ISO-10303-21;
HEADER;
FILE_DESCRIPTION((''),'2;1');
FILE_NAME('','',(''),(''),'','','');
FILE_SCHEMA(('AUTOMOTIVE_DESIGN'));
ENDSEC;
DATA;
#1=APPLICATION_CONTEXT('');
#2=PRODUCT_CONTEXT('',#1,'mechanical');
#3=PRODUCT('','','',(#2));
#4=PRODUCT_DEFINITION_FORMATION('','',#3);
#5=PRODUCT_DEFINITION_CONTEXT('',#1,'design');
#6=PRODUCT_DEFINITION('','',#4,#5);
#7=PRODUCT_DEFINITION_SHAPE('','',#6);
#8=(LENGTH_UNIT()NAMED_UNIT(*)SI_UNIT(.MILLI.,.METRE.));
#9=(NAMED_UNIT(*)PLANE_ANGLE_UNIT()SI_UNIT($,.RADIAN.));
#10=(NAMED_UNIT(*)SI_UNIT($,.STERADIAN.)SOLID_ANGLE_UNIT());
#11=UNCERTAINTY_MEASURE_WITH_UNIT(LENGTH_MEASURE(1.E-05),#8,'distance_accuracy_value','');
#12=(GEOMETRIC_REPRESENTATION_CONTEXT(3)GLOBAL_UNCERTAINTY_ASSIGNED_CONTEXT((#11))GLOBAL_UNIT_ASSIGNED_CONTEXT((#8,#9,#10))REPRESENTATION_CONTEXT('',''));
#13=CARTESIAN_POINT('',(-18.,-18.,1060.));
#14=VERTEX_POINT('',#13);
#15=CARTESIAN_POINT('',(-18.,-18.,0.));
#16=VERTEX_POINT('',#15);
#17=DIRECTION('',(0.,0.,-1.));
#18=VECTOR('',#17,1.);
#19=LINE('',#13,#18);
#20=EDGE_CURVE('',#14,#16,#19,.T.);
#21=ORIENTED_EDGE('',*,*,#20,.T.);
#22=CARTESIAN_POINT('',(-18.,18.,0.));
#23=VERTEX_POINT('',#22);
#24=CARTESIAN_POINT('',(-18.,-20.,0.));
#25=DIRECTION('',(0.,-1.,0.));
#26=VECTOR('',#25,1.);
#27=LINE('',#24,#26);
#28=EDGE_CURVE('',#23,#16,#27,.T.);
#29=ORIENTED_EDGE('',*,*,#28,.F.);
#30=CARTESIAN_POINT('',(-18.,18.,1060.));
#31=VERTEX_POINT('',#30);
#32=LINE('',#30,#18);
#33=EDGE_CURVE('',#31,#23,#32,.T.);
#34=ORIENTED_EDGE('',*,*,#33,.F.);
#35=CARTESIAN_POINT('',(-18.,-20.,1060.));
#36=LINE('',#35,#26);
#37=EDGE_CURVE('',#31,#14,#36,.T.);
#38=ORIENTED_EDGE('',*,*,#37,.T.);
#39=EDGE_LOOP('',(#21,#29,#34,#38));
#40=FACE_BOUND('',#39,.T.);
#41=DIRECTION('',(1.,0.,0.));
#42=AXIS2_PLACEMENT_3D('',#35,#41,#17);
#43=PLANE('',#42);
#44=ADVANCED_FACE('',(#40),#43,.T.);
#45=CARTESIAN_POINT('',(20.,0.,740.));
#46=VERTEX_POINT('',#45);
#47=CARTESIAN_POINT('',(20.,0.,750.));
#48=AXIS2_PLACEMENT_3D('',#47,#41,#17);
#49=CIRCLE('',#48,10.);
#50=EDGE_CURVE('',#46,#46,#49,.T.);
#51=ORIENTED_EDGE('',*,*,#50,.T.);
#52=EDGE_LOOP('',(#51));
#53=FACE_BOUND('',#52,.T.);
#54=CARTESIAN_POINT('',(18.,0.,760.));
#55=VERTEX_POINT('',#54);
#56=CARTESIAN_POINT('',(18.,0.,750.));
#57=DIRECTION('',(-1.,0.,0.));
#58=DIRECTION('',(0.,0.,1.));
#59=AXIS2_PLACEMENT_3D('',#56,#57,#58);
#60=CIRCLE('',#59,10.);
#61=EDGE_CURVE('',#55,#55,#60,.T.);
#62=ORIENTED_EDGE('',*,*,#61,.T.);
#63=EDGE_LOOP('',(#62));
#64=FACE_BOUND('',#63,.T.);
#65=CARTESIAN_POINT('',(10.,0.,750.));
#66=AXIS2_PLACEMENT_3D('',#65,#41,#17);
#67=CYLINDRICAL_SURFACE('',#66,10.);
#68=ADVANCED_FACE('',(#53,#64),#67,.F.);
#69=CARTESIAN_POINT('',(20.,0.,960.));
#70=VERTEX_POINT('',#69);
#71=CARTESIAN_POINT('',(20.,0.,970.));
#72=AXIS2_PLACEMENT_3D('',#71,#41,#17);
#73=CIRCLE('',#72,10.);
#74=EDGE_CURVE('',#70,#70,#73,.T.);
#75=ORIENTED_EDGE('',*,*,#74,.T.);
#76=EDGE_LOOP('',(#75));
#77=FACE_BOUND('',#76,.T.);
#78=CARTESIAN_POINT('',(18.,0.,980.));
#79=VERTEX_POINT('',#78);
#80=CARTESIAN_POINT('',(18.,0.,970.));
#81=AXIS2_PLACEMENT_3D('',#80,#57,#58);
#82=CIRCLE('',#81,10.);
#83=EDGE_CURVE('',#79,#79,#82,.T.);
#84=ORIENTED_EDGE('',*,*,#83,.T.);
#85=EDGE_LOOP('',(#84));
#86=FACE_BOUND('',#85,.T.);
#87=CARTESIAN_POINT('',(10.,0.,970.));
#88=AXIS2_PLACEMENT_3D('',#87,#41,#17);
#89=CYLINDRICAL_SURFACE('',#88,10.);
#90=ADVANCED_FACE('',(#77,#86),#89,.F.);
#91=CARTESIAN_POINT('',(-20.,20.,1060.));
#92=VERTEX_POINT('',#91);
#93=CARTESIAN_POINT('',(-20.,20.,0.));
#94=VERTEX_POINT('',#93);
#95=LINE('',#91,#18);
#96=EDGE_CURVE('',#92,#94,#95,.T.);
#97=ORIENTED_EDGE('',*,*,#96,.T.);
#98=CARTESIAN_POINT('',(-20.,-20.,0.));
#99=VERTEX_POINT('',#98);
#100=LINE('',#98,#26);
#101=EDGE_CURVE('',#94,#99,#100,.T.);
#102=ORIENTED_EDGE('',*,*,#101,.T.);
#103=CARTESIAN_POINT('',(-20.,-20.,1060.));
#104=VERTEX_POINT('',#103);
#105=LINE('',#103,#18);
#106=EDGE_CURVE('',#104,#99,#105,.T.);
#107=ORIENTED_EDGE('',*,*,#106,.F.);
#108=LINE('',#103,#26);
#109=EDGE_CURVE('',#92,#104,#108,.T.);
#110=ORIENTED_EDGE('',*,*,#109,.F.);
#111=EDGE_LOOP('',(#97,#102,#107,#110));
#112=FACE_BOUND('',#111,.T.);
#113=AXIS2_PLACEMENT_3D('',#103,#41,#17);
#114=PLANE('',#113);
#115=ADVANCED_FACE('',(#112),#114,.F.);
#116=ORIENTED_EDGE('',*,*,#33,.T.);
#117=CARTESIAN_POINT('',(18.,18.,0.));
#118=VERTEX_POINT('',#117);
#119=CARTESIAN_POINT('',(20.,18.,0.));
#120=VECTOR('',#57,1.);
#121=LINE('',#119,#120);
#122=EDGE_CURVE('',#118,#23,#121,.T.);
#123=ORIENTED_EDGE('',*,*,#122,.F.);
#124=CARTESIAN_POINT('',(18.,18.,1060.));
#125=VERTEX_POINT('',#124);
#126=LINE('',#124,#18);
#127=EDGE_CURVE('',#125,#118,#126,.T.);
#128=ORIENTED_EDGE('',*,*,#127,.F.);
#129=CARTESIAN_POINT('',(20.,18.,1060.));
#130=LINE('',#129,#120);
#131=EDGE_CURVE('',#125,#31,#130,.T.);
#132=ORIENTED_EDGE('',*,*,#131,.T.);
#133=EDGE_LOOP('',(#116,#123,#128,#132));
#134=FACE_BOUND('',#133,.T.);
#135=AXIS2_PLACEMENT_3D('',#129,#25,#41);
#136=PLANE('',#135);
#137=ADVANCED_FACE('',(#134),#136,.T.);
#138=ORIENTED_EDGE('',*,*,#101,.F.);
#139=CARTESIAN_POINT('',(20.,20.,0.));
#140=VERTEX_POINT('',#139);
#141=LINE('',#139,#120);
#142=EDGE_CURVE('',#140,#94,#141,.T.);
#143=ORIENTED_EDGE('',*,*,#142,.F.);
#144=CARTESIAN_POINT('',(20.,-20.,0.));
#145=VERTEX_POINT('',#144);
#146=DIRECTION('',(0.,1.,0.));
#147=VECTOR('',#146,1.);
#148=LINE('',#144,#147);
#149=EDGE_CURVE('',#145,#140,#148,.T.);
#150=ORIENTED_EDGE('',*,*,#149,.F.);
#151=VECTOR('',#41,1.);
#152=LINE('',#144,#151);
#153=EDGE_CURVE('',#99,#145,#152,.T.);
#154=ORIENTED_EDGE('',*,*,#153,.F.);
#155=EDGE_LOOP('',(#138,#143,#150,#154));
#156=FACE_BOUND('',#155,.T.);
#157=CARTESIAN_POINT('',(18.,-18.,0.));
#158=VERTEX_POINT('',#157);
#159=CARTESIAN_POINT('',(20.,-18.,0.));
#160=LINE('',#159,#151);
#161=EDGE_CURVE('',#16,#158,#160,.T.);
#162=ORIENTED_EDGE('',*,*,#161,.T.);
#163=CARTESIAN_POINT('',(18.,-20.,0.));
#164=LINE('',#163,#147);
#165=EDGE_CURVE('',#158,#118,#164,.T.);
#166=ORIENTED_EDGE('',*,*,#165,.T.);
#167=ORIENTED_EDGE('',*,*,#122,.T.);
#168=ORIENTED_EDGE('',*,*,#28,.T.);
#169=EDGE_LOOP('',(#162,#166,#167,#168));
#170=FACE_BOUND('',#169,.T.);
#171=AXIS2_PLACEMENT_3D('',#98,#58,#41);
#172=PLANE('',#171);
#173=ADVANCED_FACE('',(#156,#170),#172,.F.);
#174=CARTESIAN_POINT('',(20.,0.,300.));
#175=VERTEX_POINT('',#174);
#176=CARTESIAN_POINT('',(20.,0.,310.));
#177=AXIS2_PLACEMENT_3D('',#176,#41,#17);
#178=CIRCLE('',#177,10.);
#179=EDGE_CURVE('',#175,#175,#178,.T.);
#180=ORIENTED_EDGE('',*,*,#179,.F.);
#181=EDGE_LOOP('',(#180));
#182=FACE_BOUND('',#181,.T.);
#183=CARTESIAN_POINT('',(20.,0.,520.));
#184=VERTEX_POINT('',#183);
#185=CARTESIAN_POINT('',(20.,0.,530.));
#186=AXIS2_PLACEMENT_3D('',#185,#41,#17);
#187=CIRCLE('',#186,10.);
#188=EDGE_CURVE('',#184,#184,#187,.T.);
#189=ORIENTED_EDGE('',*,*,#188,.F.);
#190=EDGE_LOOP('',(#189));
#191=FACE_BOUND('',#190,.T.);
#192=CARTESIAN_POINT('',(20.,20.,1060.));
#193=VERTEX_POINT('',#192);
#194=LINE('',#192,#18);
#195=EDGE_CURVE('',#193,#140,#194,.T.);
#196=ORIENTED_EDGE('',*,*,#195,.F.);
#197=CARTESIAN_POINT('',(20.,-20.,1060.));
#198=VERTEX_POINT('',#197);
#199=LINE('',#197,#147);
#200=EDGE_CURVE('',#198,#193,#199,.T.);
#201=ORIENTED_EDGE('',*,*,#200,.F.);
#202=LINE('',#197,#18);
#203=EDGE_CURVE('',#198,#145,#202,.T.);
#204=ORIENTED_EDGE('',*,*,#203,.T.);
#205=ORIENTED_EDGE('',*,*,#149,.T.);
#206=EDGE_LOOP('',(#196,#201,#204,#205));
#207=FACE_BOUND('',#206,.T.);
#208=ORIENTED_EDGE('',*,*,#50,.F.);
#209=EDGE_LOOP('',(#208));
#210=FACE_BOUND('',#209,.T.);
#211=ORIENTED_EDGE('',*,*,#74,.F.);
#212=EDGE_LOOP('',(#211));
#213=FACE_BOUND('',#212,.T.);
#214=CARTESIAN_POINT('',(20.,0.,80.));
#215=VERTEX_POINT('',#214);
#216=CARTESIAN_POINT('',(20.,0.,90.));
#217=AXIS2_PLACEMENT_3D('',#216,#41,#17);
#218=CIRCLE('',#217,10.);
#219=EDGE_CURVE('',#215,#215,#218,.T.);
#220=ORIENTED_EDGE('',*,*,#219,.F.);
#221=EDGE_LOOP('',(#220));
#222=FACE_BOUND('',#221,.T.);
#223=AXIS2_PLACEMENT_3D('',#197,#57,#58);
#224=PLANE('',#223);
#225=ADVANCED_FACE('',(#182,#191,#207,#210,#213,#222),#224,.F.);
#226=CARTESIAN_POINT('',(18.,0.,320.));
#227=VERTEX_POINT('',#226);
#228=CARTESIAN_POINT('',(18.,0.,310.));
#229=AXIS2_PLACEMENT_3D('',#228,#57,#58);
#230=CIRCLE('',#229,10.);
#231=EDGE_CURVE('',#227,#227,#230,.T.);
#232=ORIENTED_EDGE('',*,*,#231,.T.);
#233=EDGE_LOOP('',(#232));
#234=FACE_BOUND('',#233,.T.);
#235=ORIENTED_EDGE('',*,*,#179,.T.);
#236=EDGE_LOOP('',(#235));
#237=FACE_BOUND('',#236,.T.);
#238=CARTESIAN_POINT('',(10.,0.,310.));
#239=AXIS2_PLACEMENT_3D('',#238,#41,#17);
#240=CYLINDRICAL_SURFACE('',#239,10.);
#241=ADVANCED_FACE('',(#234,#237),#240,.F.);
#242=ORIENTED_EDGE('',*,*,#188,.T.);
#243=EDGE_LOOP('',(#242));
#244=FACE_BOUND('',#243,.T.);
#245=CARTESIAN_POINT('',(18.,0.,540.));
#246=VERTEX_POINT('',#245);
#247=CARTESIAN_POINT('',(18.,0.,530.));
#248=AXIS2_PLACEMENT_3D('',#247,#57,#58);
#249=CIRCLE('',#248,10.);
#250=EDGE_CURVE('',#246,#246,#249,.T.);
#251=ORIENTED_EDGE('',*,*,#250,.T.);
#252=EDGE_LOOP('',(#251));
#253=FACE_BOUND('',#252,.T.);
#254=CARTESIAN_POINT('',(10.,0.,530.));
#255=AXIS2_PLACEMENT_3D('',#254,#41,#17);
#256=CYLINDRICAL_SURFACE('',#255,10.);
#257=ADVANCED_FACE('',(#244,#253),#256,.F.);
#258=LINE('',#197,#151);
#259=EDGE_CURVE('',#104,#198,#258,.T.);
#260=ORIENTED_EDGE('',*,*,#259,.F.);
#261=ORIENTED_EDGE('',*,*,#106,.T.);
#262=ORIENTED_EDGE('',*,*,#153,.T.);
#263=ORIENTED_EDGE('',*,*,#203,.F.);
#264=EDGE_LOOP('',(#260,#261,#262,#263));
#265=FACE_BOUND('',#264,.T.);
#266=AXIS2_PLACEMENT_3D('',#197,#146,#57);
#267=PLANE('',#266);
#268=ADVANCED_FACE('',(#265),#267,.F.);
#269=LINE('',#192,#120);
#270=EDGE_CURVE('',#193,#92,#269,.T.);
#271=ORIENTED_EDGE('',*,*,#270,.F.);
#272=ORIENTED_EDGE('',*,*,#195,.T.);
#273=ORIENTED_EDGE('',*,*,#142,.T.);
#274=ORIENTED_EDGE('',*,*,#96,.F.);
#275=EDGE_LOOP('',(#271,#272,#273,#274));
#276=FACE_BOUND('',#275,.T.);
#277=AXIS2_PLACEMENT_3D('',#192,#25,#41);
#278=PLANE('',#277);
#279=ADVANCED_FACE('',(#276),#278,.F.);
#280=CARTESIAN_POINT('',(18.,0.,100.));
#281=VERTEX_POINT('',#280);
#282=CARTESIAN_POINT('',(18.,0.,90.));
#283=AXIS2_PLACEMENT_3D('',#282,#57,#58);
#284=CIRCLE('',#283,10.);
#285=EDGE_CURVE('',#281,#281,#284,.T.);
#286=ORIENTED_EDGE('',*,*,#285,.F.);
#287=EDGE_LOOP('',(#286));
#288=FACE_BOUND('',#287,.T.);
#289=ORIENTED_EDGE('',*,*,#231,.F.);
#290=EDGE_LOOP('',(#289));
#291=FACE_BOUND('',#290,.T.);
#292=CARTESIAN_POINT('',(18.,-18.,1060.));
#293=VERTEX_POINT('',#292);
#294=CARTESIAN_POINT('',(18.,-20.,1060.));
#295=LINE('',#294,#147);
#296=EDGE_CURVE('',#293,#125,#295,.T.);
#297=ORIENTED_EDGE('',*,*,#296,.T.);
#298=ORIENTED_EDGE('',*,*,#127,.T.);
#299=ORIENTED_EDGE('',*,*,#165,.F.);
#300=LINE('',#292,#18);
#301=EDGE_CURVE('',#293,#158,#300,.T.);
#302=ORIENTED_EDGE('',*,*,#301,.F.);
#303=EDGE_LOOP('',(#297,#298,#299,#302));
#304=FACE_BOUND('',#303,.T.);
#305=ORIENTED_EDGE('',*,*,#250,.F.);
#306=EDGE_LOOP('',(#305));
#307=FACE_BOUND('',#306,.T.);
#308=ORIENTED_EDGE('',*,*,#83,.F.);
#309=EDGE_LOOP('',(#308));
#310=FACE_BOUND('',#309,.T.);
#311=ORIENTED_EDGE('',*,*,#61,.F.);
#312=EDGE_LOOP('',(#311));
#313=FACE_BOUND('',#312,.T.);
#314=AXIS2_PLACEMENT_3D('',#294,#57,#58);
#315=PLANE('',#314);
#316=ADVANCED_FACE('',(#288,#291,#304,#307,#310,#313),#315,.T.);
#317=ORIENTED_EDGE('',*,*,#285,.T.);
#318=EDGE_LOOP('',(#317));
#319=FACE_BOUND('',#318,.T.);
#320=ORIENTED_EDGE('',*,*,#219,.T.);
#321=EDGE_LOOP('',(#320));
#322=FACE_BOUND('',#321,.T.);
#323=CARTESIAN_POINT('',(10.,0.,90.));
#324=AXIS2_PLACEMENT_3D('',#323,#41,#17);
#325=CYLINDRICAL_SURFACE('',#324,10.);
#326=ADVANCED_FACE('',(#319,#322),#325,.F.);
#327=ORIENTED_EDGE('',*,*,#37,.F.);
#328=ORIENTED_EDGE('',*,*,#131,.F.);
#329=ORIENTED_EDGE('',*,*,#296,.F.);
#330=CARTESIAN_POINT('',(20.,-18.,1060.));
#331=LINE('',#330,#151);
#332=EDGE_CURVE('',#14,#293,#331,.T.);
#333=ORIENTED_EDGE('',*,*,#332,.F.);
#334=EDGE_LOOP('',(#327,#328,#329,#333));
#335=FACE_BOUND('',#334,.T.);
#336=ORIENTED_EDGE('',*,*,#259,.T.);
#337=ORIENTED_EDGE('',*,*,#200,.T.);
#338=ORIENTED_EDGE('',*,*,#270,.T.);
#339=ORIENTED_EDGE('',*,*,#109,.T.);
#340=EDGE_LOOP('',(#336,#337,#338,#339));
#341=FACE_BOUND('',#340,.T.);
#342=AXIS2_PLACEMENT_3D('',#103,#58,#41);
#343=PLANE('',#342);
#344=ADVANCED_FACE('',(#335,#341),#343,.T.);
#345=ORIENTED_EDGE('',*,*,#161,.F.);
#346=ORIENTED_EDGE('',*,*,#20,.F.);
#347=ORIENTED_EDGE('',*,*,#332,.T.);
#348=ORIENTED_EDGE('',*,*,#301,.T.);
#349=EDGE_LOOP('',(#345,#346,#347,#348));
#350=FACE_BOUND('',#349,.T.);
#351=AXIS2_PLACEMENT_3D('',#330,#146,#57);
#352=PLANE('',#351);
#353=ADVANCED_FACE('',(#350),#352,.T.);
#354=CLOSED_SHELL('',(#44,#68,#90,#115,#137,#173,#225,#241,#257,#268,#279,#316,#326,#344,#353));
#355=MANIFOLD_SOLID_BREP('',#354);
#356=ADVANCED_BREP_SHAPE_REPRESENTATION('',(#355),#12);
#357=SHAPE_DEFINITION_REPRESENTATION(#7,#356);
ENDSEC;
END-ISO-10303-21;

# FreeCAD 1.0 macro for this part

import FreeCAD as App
import Part
import Sketcher

V = App.Vector
Q = App.Units.Quantity

doc = App.newDocument("Part")
body = doc.addObject("PartDesign::Body", "Body")

# Sketch on XY plane
sketch1 = body.newObject("Sketcher::SketchObject", "Sketch")
sketch1.AttachmentSupport = (doc.getObject("XY_Plane"), [""])
sketch1.MapMode = "FlatFace"
sketch1.addGeometry(Part.LineSegment(V(-20, 20, 0), V(-20, -20, 0)), False)
sketch1.addGeometry(Part.LineSegment(V(-20, -20, 0), V(20, -20, 0)), False)
sketch1.addGeometry(Part.LineSegment(V(20, -20, 0), V(20, 20, 0)), False)
sketch1.addGeometry(Part.LineSegment(V(20, 20, 0), V(-20, 20, 0)), False)
sketch1.addGeometry(Part.LineSegment(V(18, -18, 0), V(-18, -18, 0)), False)
sketch1.addGeometry(Part.LineSegment(V(-18, -18, 0), V(-18, 18, 0)), False)
sketch1.addGeometry(Part.LineSegment(V(-18, 18, 0), V(18, 18, 0)), False)
sketch1.addGeometry(Part.LineSegment(V(18, 18, 0), V(18, -18, 0)), False)
sketch1.addConstraint(Sketcher.Constraint("Coincident", 0, 2, 1, 1))
sketch1.addConstraint(Sketcher.Constraint("Coincident", 1, 2, 2, 1))
sketch1.addConstraint(Sketcher.Constraint("Coincident", 2, 2, 3, 1))
sketch1.addConstraint(Sketcher.Constraint("Coincident", 3, 2, 0, 1))
sketch1.addConstraint(Sketcher.Constraint("Coincident", 4, 2, 5, 1))
sketch1.addConstraint(Sketcher.Constraint("Coincident", 5, 2, 6, 1))
sketch1.addConstraint(Sketcher.Constraint("Coincident", 6, 2, 7, 1))
sketch1.addConstraint(Sketcher.Constraint("Coincident", 7, 2, 4, 1))
sketch1.addConstraint(Sketcher.Constraint("Vertical", 0))
sketch1.addConstraint(Sketcher.Constraint("Horizontal", 1))
sketch1.addConstraint(Sketcher.Constraint("Vertical", 2))
sketch1.addConstraint(Sketcher.Constraint("Horizontal", 3))
sketch1.addConstraint(Sketcher.Constraint("Horizontal", 4))
sketch1.addConstraint(Sketcher.Constraint("Vertical", 5))
sketch1.addConstraint(Sketcher.Constraint("Horizontal", 6))
sketch1.addConstraint(Sketcher.Constraint("Vertical", 7))
sketch1.addConstraint(Sketcher.Constraint("Symmetric", 0, 2, 2, 2, -1, 1))
sketch1.addConstraint(Sketcher.Constraint("Symmetric", 4, 2, 6, 2, -1, 1))
sketch1.addConstraint(Sketcher.Constraint("Equal", 3, 0))
sketch1.addConstraint(Sketcher.Constraint("Equal", 6, 5))
sketch1.addConstraint(Sketcher.Constraint("DistanceX", 1, 1, 1, 2, Q("40 mm")))
sketch1.addConstraint(Sketcher.Constraint("DistanceX", 4, 2, 4, 1, Q("36 mm")))
pad1 = body.newObject("PartDesign::Pad", "Pad")
pad1.Profile = sketch1
pad1.Length = 1060

# Sketch on YZ plane
sketch2 = body.newObject("Sketcher::SketchObject", "Sketch001")
sketch2.AttachmentSupport = (doc.getObject("YZ_Plane"), [""])
sketch2.MapMode = "FlatFace"
sketch2.AttachmentOffset = App.Placement(V(0, 0, 20), App.Rotation())
sketch2.addGeometry(Part.Circle(V(0, 530, 0), V(0, 0, 1), 10), False)
sketch2.addGeometry(Part.Circle(V(0, 310, 0), V(0, 0, 1), 10), False)
sketch2.addGeometry(Part.Circle(V(0, 90, 0), V(0, 0, 1), 10), False)
sketch2.addGeometry(Part.Circle(V(0, 750, 0), V(0, 0, 1), 10), False)
sketch2.addGeometry(Part.Circle(V(0, 970, 0), V(0, 0, 1), 10), False)
sketch2.addConstraint(Sketcher.Constraint("Equal", 0, 1))
sketch2.addConstraint(Sketcher.Constraint("Equal", 1, 2))
sketch2.addConstraint(Sketcher.Constraint("Equal", 2, 3))
sketch2.addConstraint(Sketcher.Constraint("Equal", 3, 4))
sketch2.addConstraint(Sketcher.Constraint("PointOnObject", 0, 3, -2))
sketch2.addConstraint(Sketcher.Constraint("PointOnObject", 1, 3, -2))
sketch2.addConstraint(Sketcher.Constraint("PointOnObject", 2, 3, -2))
sketch2.addConstraint(Sketcher.Constraint("PointOnObject", 3, 3, -2))
sketch2.addConstraint(Sketcher.Constraint("PointOnObject", 4, 3, -2))
sketch2.addConstraint(Sketcher.Constraint("Diameter", 0, Q("20 mm")))
sketch2.addConstraint(Sketcher.Constraint("DistanceY", -1, 1, 0, 3, Q("530 mm")))
sketch2.addConstraint(Sketcher.Constraint("DistanceY", -1, 1, 1, 3, Q("310 mm")))
sketch2.addConstraint(Sketcher.Constraint("DistanceY", -1, 1, 2, 3, Q("90 mm")))
sketch2.addConstraint(Sketcher.Constraint("DistanceY", -1, 1, 3, 3, Q("750 mm")))
sketch2.addConstraint(Sketcher.Constraint("DistanceY", -1, 1, 4, 3, Q("970 mm")))
pocket1 = body.newObject("PartDesign::Pocket", "Pocket")
pocket1.Profile = sketch2
pocket1.Length = 10

doc.recompute()
